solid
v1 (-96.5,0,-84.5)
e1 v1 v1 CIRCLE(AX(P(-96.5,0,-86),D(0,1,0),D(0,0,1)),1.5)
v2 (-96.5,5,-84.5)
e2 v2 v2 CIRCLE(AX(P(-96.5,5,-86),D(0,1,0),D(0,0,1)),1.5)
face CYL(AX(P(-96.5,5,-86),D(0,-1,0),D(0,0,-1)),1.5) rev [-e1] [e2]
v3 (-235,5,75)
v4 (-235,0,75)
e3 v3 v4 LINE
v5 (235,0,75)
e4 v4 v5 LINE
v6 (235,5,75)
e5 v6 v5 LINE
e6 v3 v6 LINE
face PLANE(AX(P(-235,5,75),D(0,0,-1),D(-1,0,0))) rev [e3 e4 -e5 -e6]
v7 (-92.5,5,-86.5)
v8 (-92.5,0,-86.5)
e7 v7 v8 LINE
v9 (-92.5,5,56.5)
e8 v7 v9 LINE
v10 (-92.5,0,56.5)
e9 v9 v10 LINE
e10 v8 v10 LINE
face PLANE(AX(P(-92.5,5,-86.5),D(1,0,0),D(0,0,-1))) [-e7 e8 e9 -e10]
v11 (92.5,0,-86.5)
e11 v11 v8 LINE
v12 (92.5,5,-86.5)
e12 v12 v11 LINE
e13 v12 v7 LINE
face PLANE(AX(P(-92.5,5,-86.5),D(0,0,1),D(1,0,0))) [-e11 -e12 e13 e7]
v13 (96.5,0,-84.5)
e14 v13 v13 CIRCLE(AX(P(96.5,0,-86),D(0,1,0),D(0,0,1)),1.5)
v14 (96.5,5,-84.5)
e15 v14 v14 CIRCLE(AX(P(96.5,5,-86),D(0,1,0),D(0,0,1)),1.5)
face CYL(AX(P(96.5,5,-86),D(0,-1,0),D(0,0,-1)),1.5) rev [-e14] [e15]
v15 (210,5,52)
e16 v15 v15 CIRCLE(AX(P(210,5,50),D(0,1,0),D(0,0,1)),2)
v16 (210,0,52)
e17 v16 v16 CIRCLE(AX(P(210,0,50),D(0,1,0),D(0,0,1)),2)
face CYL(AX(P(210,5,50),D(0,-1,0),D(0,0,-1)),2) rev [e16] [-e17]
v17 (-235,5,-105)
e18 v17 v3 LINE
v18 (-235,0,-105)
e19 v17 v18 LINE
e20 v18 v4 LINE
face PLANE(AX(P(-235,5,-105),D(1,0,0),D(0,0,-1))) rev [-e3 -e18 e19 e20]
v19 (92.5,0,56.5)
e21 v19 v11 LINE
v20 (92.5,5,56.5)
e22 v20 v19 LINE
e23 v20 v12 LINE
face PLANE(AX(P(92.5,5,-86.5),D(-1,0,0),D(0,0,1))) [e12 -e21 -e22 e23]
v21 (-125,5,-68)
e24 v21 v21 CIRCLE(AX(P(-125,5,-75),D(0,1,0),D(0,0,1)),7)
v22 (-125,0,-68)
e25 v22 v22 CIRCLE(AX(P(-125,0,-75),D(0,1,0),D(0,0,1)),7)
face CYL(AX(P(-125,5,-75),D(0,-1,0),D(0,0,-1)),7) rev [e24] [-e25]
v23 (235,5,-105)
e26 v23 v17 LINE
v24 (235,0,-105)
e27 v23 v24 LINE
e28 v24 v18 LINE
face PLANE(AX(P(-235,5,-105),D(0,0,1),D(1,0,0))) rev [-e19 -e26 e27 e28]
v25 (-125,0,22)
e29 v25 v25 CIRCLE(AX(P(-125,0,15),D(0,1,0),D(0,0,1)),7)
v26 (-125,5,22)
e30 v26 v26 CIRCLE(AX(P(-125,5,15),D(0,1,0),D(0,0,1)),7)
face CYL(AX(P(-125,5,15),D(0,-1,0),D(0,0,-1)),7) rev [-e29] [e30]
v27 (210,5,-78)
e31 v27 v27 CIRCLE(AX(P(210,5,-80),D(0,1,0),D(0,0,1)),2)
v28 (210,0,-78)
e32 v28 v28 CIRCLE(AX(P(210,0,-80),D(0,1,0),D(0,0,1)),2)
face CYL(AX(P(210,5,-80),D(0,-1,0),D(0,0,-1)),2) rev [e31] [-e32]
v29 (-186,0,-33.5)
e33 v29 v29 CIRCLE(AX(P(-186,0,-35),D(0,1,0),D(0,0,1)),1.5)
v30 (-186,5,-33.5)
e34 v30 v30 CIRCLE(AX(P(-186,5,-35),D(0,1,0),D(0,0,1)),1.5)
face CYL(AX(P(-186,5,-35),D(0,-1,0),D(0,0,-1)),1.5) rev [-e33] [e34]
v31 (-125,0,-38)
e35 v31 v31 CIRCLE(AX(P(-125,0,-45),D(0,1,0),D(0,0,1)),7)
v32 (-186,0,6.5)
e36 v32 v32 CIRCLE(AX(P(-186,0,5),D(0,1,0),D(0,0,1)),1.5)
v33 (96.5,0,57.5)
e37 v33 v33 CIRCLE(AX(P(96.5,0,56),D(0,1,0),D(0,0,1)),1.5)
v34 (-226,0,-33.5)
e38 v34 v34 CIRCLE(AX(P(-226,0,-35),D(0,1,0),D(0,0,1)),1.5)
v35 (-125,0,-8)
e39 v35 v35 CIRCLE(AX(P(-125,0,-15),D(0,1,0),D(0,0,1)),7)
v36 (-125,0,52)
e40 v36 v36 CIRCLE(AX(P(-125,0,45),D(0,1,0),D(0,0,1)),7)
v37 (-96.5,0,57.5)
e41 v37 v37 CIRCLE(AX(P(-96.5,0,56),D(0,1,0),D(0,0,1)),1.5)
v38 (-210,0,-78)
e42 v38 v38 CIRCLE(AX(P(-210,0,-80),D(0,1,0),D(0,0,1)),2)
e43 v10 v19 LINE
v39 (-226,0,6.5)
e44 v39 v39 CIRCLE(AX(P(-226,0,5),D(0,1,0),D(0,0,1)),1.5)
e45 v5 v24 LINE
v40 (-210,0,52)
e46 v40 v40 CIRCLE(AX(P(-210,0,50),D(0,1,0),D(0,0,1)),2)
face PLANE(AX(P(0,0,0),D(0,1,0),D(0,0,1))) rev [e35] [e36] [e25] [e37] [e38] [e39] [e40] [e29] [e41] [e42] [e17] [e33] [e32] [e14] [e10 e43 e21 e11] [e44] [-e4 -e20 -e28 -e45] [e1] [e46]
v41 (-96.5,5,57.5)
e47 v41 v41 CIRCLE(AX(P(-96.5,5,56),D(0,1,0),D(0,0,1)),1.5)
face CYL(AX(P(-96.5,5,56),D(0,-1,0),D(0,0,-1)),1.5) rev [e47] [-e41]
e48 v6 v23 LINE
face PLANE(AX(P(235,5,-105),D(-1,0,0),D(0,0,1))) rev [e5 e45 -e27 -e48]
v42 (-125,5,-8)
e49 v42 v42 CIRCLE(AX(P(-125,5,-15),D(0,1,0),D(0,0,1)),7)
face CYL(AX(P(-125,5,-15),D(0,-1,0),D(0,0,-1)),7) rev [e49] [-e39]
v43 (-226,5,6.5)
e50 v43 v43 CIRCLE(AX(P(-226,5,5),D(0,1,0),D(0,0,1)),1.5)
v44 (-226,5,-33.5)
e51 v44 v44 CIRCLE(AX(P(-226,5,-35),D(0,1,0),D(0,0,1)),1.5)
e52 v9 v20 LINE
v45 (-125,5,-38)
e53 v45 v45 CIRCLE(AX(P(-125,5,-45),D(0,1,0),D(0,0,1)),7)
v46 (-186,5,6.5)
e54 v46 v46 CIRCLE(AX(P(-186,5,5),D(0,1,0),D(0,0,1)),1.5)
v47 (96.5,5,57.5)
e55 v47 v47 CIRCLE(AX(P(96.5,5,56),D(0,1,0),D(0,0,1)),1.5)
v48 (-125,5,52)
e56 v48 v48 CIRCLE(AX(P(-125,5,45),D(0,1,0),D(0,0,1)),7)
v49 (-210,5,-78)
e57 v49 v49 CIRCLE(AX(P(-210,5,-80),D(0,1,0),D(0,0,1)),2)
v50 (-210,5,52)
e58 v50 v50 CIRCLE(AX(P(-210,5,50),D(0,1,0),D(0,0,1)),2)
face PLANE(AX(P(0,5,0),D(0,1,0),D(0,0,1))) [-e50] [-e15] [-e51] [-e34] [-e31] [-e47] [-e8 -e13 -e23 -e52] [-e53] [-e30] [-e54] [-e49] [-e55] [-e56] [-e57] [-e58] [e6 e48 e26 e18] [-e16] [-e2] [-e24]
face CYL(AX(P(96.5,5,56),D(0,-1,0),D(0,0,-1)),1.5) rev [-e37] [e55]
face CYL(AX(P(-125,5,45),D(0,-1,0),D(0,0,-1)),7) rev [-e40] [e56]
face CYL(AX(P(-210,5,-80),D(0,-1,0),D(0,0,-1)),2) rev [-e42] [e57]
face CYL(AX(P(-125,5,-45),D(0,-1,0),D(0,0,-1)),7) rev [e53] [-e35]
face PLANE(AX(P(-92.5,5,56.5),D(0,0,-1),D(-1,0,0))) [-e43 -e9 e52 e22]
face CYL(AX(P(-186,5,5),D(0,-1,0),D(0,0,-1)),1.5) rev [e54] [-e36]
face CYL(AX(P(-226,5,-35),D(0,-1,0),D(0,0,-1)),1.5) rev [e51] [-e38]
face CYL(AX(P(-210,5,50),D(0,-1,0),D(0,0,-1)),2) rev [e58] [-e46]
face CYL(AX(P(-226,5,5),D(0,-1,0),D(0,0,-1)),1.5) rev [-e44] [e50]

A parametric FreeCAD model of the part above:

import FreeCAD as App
import Part
import Sketcher

V = App.Vector


def add_polygon(sketch, points):
    """Adds a closed chain of lines whose ends are joined by coincident constraints."""
    first, n = sketch.GeometryCount, len(points)
    for a, b in zip(points, points[1:] + points[:1]):
        sketch.addGeometry(Part.LineSegment(App.Vector(*a, 0), App.Vector(*b, 0)), False)
    for i in range(n):
        sketch.addConstraint(Sketcher.Constraint("Coincident", first + i, 2, first + (i + 1) % n, 1))

doc = App.newDocument("Part")
body = doc.addObject("PartDesign::Body", "Body")

sketch1 = body.newObject("Sketcher::SketchObject", "Sketch")
sketch1.AttachmentSupport = (doc.getObject("XZ_Plane"), [""])
sketch1.MapMode = "FlatFace"
add_polygon(sketch1, [(-235, -105), (-235, 75), (235, 75), (235, -105)])
sketch1.addGeometry(Part.Circle(V(-210, 50, 0), V(0, 0, 1), 2), False)
sketch1.addGeometry(Part.Circle(V(-125, 45, 0), V(0, 0, 1), 7), False)
sketch1.addGeometry(Part.Circle(V(-96.5, 56, 0), V(0, 0, 1), 1.5), False)
sketch1.addGeometry(Part.Circle(V(-226, 5, 0), V(0, 0, 1), 1.5), False)
sketch1.addGeometry(Part.Circle(V(-186, 5, 0), V(0, 0, 1), 1.5), False)
sketch1.addGeometry(Part.Circle(V(-125, 15, 0), V(0, 0, 1), 7), False)
sketch1.addGeometry(Part.Circle(V(96.5, 56, 0), V(0, 0, 1), 1.5), False)
sketch1.addGeometry(Part.Circle(V(210, 50, 0), V(0, 0, 1), 2), False)
sketch1.addGeometry(Part.Circle(V(-125, -15, 0), V(0, 0, 1), 7), False)
sketch1.addGeometry(Part.Circle(V(-226, -35, 0), V(0, 0, 1), 1.5), False)
sketch1.addGeometry(Part.Circle(V(-186, -35, 0), V(0, 0, 1), 1.5), False)
sketch1.addGeometry(Part.Circle(V(-125, -45, 0), V(0, 0, 1), 7), False)
sketch1.addGeometry(Part.Circle(V(-210, -80, 0), V(0, 0, 1), 2), False)
sketch1.addGeometry(Part.Circle(V(-125, -75, 0), V(0, 0, 1), 7), False)
sketch1.addGeometry(Part.Circle(V(-96.5, -86, 0), V(0, 0, 1), 1.5), False)
add_polygon(sketch1, [(92.5, 56.5), (-92.5, 56.5), (-92.5, -86.5), (92.5, -86.5)])
sketch1.addGeometry(Part.Circle(V(96.5, -86, 0), V(0, 0, 1), 1.5), False)
sketch1.addGeometry(Part.Circle(V(210, -80, 0), V(0, 0, 1), 2), False)
sketch1.addConstraint([
    Sketcher.Constraint("Vertical", 0),
    Sketcher.Constraint("Horizontal", 1),
    Sketcher.Constraint("Vertical", 2),
    Sketcher.Constraint("Horizontal", 3),
    Sketcher.Constraint("Horizontal", 19),
    Sketcher.Constraint("Vertical", 20),
    Sketcher.Constraint("Horizontal", 21),
    Sketcher.Constraint("Vertical", 22),
    Sketcher.Constraint("Equal", 6, 7),
    Sketcher.Constraint("Equal", 7, 8),
    Sketcher.Constraint("Equal", 5, 9),
    Sketcher.Constraint("Equal", 8, 10),
    Sketcher.Constraint("Equal", 4, 11),
    Sketcher.Constraint("Equal", 9, 12),
    Sketcher.Constraint("Equal", 10, 13),
    Sketcher.Constraint("Equal", 13, 14),
    Sketcher.Constraint("Equal", 12, 15),
    Sketcher.Constraint("Equal", 11, 16),
    Sketcher.Constraint("Equal", 15, 17),
    Sketcher.Constraint("Equal", 14, 18),
    Sketcher.Constraint("Equal", 18, 23),
    Sketcher.Constraint("Equal", 16, 24),
    Sketcher.Constraint("Symmetric", 6, 3, 10, 3, -2),
    Sketcher.Constraint("Symmetric", 4, 3, 11, 3, -2),
    Sketcher.Constraint("Symmetric", 18, 3, 23, 3, -2),
    Sketcher.Constraint("Symmetric", 16, 3, 24, 3, -2),
    Sketcher.Constraint("Symmetric", 9, 3, 12, 3, -1),
    Sketcher.Constraint("Symmetric", 5, 3, 15, 3, -1),
    Sketcher.Constraint("Horizontal", 7, 3, 8, 3),
    Sketcher.Constraint("Horizontal", 13, 3, 14, 3),
    Sketcher.Constraint("Vertical", 5, 3, 9, 3),
    Sketcher.Constraint("Vertical", 7, 3, 13, 3),
    Sketcher.Constraint("Vertical", 8, 3, 14, 3),
    Sketcher.Constraint("Vertical", 4, 3, 16, 3),
    Sketcher.Constraint("Vertical", 15, 3, 17, 3),
    Sketcher.Constraint("Vertical", 6, 3, 18, 3),
    Sketcher.Constraint("Diameter", 4, 4.0),
    Sketcher.Constraint("Diameter", 5, 14.0),
    Sketcher.Constraint("Diameter", 6, 3.0),
    Sketcher.Constraint("DistanceX", 1, 1, 1, 2, 470.0),
    Sketcher.Constraint("DistanceX", 19, 2, 19, 1, 185.0),
    Sketcher.Constraint("DistanceY", 0, 1, 0, 2, 180.0),
    Sketcher.Constraint("DistanceY", 20, 2, 20, 1, 143.0),
    Sketcher.Constraint("DistanceX", 4, 3, -1, 1, 210.0),
    Sketcher.Constraint("DistanceY", -1, 1, 4, 3, 50.0),
    Sketcher.Constraint("DistanceX", 5, 3, -1, 1, 125.0),
    Sketcher.Constraint("DistanceY", -1, 1, 5, 3, 45.0),
    Sketcher.Constraint("DistanceY", -1, 1, 6, 3, 56.0),
    Sketcher.Constraint("DistanceX", 7, 3, -1, 1, 226.0),
    Sketcher.Constraint("DistanceY", -1, 1, 7, 3, 5.0),
    Sketcher.Constraint("DistanceX", 8, 3, -1, 1, 186.0),
    Sketcher.Constraint("DistanceY", -1, 1, 9, 3, 15.0),
    Sketcher.Constraint("DistanceY", 13, 3, -1, 1, 35.0),
    Sketcher.Constraint("DistanceY", 16, 3, -1, 1, 80.0),
    Sketcher.Constraint("DistanceY", 17, 3, -1, 1, 75.0),
    Sketcher.Constraint("DistanceY", 18, 3, -1, 1, 86.0),
    Sketcher.Constraint("DistanceX", 0, 2, -1, 1, 235.0),
    Sketcher.Constraint("DistanceY", -1, 1, 0, 2, 75.0),
    Sketcher.Constraint("DistanceX", 6, 3, 10, 3, 193.0),
    Sketcher.Constraint("DistanceX", 6, 3, 19, 2, 4.0),
    Sketcher.Constraint("DistanceY", -1, 1, 19, 2, 56.5),
])
pad1 = body.newObject("PartDesign::Pad", "Pad")
pad1.Profile = sketch1
pad1.Length = 5
pad1.Reversed = True

doc.recompute()
